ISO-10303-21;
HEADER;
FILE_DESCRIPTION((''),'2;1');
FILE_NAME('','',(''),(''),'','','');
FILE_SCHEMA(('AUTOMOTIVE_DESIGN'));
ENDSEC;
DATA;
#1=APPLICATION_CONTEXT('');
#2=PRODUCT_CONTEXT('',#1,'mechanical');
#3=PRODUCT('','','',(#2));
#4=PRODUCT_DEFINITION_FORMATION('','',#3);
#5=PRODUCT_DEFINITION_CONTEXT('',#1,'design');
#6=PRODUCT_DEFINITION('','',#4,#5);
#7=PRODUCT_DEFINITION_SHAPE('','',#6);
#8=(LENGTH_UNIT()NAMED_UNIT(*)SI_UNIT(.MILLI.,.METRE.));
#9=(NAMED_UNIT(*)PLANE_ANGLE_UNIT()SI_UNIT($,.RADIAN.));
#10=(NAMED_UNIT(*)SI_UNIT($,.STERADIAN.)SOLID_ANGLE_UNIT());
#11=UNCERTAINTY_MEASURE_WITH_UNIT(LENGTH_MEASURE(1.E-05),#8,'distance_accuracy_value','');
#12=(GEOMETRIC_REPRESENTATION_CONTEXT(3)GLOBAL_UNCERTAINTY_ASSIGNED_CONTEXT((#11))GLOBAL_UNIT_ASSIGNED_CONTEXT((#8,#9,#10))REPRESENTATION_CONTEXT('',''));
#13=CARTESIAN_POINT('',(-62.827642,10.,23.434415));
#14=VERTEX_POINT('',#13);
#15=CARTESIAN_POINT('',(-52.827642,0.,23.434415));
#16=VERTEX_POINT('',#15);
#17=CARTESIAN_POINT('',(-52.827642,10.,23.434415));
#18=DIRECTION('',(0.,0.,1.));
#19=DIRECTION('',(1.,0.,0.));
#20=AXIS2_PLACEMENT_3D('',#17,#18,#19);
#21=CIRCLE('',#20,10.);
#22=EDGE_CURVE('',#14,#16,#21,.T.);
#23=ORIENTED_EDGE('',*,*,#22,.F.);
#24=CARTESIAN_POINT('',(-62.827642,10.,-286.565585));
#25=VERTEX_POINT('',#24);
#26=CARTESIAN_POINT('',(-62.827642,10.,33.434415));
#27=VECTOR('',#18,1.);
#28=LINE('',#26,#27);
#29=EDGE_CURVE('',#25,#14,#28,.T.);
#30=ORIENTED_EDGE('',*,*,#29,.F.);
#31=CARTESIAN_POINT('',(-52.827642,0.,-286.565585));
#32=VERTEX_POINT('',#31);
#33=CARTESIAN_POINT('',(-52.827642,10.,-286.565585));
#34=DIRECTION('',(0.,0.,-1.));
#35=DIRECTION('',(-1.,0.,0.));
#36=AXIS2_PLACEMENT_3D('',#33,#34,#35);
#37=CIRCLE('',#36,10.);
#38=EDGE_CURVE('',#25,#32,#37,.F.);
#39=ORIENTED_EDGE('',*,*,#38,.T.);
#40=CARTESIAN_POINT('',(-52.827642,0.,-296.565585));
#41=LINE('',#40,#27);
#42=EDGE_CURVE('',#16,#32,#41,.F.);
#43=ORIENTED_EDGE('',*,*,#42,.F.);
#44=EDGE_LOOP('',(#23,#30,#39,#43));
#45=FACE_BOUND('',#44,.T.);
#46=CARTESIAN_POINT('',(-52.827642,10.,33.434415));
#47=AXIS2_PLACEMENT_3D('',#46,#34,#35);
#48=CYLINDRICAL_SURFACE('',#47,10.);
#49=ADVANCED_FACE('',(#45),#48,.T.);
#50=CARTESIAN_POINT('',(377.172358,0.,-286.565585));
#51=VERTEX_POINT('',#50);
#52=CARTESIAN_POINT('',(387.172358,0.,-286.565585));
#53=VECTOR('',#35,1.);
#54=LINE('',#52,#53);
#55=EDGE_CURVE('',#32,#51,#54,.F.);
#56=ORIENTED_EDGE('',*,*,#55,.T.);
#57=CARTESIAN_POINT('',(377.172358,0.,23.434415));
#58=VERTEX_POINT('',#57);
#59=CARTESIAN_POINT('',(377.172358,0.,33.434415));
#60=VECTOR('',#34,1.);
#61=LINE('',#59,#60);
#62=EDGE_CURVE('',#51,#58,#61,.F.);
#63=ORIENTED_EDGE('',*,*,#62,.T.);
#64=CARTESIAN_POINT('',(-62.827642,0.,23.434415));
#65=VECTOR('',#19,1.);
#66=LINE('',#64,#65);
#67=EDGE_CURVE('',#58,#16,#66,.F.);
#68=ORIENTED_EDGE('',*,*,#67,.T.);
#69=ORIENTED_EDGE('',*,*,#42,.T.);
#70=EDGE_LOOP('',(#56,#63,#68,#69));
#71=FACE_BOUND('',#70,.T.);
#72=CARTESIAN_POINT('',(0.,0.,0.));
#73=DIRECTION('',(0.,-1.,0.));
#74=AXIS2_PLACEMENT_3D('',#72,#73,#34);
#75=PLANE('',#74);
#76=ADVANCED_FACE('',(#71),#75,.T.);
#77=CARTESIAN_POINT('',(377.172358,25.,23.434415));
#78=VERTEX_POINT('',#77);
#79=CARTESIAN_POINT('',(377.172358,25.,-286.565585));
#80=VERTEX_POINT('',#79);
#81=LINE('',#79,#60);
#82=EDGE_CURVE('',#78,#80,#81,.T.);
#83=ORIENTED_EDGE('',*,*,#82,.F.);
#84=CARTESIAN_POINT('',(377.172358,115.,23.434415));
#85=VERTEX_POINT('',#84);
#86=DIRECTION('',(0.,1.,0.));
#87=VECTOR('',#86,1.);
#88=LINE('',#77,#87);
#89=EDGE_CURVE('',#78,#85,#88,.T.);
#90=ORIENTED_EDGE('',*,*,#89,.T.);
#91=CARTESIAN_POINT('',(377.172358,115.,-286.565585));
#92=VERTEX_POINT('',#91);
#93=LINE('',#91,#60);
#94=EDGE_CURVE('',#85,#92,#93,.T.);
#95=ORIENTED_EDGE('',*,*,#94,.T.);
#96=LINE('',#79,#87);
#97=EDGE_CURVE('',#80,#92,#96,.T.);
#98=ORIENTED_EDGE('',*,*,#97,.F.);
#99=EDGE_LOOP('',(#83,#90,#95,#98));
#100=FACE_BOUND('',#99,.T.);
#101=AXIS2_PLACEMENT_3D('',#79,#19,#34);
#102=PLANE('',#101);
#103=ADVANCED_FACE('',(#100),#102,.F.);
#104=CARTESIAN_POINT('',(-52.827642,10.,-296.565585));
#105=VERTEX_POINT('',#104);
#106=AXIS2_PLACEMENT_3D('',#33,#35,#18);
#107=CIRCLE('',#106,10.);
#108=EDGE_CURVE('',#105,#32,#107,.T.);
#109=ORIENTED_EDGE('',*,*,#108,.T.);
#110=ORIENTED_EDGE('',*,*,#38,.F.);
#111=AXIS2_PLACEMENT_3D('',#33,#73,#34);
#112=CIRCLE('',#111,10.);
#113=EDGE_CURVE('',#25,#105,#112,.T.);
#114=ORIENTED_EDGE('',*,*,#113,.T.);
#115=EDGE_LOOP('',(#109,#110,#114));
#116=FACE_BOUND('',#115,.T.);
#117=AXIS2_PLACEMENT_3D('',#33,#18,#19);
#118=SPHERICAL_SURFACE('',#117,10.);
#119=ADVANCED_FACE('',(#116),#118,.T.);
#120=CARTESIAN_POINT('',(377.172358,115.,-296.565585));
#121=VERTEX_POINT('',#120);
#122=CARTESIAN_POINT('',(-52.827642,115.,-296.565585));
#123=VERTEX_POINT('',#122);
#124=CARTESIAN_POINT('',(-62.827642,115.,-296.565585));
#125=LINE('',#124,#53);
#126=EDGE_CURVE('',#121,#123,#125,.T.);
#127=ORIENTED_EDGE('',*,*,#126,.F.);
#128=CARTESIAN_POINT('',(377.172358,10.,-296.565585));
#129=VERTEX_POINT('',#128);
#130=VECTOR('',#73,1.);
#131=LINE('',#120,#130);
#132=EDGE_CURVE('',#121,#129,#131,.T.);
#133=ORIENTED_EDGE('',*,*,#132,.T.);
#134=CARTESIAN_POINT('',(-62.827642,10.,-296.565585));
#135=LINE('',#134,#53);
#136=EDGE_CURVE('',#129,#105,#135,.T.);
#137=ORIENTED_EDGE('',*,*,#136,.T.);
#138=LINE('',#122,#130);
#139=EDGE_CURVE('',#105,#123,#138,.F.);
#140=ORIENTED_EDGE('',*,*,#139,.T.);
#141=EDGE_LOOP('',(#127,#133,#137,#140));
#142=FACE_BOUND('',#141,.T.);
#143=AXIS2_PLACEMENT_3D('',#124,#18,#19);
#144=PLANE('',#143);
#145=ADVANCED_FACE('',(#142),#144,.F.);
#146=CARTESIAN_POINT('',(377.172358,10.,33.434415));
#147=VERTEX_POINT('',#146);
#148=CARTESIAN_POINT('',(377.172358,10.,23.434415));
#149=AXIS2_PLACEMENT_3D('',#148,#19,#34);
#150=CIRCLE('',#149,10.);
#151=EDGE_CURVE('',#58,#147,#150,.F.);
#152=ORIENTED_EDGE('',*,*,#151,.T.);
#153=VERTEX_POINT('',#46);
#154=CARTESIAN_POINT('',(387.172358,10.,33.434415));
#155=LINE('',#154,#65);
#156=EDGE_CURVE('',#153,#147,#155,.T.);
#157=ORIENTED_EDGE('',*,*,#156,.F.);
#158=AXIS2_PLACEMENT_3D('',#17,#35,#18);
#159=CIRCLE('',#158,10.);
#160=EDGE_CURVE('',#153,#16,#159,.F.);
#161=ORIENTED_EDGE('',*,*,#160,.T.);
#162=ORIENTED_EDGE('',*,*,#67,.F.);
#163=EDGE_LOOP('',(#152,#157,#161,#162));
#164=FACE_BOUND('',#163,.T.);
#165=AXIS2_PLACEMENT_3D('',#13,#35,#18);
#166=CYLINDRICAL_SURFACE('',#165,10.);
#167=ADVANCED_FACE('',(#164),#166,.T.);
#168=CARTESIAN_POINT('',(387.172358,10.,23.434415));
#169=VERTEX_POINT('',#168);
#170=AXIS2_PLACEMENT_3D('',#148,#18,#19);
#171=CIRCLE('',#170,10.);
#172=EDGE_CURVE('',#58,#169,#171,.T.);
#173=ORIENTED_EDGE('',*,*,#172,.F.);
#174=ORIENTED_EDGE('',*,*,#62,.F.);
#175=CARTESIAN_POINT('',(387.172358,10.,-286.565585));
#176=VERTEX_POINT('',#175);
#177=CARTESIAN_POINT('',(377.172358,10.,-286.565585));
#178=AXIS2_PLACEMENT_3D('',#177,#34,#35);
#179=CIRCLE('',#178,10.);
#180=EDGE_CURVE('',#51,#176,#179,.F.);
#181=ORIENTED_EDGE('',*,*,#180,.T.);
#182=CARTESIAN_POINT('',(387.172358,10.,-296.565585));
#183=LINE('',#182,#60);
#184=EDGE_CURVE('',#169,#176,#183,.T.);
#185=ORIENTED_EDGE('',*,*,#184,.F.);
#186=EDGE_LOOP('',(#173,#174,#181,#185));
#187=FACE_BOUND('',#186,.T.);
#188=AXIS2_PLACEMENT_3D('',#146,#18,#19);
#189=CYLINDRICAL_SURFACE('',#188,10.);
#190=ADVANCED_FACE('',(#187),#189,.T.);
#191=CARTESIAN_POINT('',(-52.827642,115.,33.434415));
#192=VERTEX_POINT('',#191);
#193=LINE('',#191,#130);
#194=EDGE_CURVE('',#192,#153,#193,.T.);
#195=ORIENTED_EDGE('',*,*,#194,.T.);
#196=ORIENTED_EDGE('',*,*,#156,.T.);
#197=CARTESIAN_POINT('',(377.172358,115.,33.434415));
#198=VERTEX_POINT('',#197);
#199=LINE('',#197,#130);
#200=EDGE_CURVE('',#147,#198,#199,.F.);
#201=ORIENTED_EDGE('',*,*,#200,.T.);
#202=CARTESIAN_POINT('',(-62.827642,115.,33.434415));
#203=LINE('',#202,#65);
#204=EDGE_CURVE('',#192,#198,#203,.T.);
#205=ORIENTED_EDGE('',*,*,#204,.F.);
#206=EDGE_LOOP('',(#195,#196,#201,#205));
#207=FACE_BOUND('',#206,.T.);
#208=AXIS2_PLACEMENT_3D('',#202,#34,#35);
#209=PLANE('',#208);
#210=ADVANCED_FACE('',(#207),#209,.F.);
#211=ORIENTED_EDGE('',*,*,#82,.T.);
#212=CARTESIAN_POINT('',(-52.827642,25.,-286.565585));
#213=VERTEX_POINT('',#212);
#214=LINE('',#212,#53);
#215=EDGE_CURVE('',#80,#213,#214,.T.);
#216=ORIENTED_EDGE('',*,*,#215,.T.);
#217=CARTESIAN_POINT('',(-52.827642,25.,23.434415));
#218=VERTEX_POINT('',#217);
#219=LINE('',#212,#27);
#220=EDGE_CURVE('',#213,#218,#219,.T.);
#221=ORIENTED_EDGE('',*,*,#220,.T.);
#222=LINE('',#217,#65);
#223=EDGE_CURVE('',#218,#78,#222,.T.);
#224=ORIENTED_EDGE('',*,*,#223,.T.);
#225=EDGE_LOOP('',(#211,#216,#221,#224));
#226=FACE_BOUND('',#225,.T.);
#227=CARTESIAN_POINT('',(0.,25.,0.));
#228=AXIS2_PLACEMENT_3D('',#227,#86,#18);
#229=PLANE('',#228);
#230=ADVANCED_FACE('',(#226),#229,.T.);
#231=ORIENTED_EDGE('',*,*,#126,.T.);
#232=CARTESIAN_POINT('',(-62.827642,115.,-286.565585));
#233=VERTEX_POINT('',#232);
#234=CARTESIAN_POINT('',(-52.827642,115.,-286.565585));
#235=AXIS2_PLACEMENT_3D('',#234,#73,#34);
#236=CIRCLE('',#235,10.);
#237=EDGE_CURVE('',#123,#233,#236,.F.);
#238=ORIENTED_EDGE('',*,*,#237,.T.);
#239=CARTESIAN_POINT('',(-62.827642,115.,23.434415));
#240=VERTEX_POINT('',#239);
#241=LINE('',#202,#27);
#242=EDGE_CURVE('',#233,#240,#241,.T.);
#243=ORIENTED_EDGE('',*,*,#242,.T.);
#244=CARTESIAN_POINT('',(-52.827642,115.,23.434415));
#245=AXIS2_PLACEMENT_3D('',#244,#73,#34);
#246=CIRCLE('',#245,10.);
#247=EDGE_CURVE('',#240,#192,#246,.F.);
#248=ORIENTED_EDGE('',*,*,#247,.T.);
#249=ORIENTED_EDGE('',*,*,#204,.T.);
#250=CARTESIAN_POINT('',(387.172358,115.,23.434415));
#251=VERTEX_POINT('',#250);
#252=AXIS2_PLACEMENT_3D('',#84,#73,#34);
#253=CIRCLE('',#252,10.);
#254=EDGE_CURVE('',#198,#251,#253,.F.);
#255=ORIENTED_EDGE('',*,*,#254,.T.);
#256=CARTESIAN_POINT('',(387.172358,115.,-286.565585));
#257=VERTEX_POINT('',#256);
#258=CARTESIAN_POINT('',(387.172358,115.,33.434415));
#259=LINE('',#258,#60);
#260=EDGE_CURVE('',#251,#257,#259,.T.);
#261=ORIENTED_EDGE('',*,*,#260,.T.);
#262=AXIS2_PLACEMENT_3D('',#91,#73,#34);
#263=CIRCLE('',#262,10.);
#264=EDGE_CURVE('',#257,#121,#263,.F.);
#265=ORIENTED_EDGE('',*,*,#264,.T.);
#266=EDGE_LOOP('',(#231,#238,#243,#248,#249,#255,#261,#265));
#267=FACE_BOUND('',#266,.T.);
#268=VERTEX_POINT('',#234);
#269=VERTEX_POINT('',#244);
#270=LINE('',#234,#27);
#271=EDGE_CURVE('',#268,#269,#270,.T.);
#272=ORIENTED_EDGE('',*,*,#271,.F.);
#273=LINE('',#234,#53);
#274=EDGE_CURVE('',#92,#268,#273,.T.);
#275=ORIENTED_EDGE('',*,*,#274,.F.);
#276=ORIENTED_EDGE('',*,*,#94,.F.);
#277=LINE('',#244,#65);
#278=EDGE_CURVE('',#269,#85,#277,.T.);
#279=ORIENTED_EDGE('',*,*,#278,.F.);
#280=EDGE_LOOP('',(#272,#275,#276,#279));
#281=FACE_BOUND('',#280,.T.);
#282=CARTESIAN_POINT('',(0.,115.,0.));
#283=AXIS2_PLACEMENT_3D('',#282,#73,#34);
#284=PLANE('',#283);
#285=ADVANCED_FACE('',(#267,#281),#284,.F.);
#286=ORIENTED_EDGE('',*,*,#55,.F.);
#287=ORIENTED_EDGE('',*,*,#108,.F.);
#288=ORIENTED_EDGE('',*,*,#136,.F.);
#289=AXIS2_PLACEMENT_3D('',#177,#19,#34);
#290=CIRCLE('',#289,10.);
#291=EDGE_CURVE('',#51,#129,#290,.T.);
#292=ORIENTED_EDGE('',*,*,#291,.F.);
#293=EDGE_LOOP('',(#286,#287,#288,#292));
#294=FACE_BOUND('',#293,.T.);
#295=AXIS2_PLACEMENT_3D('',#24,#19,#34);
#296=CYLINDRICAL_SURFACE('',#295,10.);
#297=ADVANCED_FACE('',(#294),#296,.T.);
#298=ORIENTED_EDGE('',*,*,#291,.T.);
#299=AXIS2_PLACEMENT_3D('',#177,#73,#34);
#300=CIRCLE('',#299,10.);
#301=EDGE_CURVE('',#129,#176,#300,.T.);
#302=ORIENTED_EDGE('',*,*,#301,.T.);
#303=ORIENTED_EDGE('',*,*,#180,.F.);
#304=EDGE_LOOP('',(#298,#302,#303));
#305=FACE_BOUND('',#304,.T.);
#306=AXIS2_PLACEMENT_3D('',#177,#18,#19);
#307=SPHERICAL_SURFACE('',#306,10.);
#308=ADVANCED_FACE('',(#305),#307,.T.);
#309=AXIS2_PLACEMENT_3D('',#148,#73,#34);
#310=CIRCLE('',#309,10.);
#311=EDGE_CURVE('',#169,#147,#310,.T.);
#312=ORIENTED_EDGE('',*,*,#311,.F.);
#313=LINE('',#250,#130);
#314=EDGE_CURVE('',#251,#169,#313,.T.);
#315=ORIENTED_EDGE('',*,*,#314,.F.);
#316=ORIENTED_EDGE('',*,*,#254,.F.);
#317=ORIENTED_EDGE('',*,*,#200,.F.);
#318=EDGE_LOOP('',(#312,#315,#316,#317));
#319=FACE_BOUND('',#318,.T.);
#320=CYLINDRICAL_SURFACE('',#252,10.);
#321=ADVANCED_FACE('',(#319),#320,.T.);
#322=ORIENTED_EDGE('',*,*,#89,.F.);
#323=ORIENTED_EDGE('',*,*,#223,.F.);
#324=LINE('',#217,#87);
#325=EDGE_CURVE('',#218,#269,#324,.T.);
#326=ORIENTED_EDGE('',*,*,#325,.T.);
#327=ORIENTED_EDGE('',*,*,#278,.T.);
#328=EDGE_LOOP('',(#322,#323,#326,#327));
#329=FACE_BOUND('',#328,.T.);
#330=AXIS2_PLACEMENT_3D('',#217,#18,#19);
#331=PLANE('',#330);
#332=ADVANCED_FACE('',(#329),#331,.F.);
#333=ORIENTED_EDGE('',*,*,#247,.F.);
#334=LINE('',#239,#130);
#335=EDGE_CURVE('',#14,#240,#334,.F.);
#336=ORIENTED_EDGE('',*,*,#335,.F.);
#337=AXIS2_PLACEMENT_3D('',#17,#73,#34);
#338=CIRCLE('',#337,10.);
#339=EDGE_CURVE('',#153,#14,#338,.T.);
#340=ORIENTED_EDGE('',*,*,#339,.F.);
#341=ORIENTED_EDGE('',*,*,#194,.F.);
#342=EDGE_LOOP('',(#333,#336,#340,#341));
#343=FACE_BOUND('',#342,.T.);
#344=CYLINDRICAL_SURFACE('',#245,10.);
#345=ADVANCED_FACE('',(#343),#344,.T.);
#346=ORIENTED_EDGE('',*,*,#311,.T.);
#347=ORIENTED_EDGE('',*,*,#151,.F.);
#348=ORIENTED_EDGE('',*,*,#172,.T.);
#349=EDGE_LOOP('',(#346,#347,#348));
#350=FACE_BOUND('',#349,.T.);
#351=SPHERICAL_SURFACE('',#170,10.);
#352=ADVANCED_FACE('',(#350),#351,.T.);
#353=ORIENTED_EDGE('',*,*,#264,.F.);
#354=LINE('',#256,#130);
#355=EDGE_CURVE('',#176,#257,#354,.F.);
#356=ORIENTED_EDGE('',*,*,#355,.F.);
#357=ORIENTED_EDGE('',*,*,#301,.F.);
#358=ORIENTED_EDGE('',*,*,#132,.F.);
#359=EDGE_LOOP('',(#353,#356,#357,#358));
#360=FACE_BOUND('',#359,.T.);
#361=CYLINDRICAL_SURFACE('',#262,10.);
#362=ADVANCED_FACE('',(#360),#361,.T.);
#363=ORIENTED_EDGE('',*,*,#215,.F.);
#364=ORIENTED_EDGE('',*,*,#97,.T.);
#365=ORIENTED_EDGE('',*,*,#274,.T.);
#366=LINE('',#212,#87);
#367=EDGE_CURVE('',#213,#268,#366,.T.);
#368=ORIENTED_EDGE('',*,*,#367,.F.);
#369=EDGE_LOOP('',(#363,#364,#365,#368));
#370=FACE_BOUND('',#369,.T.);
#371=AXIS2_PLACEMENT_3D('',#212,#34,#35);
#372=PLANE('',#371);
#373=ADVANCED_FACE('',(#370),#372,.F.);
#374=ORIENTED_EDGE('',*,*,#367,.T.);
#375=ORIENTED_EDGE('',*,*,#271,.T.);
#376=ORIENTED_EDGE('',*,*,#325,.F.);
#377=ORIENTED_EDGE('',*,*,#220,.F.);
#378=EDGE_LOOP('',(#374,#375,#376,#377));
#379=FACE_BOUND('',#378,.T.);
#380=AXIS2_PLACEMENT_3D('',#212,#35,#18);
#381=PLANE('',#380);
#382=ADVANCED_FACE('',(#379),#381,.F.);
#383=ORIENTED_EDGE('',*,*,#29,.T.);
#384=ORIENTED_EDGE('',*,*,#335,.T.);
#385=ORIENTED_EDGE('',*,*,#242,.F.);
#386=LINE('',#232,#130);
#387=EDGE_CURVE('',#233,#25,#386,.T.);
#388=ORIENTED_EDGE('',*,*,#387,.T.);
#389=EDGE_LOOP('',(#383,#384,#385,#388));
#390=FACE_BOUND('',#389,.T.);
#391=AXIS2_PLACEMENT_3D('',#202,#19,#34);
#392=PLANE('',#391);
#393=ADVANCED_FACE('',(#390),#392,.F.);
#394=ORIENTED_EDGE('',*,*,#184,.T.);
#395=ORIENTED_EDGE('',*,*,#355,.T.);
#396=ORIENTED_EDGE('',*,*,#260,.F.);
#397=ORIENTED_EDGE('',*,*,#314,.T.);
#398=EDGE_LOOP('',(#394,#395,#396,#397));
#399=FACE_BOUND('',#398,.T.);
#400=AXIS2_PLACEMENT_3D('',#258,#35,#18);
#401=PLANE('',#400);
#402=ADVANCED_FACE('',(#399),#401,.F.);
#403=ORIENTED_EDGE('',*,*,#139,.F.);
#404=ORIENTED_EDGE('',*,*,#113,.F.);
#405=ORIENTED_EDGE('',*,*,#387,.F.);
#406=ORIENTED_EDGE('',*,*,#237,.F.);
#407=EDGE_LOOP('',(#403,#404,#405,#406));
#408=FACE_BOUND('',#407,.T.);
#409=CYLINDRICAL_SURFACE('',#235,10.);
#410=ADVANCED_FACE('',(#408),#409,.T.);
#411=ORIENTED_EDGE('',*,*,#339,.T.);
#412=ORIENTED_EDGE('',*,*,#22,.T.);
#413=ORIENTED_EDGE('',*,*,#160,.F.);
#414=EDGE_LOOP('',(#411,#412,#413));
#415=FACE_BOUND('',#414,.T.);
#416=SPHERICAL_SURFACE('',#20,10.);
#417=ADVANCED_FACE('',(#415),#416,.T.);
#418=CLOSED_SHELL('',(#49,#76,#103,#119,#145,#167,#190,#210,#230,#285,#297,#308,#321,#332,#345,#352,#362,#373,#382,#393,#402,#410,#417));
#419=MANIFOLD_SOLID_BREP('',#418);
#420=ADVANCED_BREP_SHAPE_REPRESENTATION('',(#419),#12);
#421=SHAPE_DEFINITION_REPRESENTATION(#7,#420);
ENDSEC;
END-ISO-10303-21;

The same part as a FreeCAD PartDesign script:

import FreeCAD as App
import Part
import Sketcher
Q = App.Units.Quantity


def edges_at(feature, points):
    """Names of the edges that pass closest to the given points."""
    edges = feature.Shape.Edges
    near = lambda p: min(range(len(edges)), key=lambda i: edges[i].distToShape(Part.Vertex(*p))[0])
    return sorted({f"Edge{near(p) + 1}" for p in points})

doc = App.newDocument("Part")
body = doc.addObject("PartDesign::Body", "Body")

sketch1 = body.newObject("Sketcher::SketchObject", "Sketch")
sketch1.AttachmentSupport = (doc.getObject("XZ_Plane"), [""])
sketch1.MapMode = "FlatFace"
sketch1.addGeometry([
    Part.LineSegment(App.Vector(-62.827642, -296.565585, 0), App.Vector(-62.827642, 33.434415, 0)),
    Part.LineSegment(App.Vector(-62.827642, 33.434415, 0), App.Vector(387.172358, 33.434415, 0)),
    Part.LineSegment(App.Vector(387.172358, 33.434415, 0), App.Vector(387.172358, -296.565585, 0)),
    Part.LineSegment(App.Vector(387.172358, -296.565585, 0), App.Vector(-62.827642, -296.565585, 0)),
], False)
sketch1.addConstraint([
    Sketcher.Constraint("Coincident", 0, 2, 1, 1),
    Sketcher.Constraint("Coincident", 1, 2, 2, 1),
    Sketcher.Constraint("Coincident", 2, 2, 3, 1),
    Sketcher.Constraint("Coincident", 3, 2, 0, 1),
    Sketcher.Constraint("Vertical", 0),
    Sketcher.Constraint("Horizontal", 1),
    Sketcher.Constraint("Vertical", 2),
    Sketcher.Constraint("Horizontal", 3),
    Sketcher.Constraint("DistanceX", 1, 1, 1, 2, Q("450 mm")),
    Sketcher.Constraint("DistanceY", 0, 1, 0, 2, Q("330 mm")),
    Sketcher.Constraint("DistanceX", 0, 2, -1, 1, Q("62.827642 mm")),
    Sketcher.Constraint("DistanceY", -1, 1, 0, 2, Q("33.434415 mm")),
])
pad1 = body.newObject("PartDesign::Pad", "Pad")
pad1.Profile = sketch1
pad1.Length = 115
pad1.Reversed = True

sketch2 = body.newObject("Sketcher::SketchObject", "Sketch001")
sketch2.AttachmentSupport = (doc.getObject("XZ_Plane"), [""])
sketch2.MapMode = "FlatFace"
sketch2.AttachmentOffset = App.Placement(App.Vector(0, 0, -115), App.Rotation())
sketch2.addGeometry([
    Part.LineSegment(App.Vector(-52.827642, -286.565585, 0), App.Vector(-52.827642, 23.434415, 0)),
    Part.LineSegment(App.Vector(-52.827642, 23.434415, 0), App.Vector(377.172358, 23.434415, 0)),
    Part.LineSegment(App.Vector(377.172358, 23.434415, 0), App.Vector(377.172358, -286.565585, 0)),
    Part.LineSegment(App.Vector(377.172358, -286.565585, 0), App.Vector(-52.827642, -286.565585, 0)),
], False)
sketch2.addConstraint([
    Sketcher.Constraint("Coincident", 0, 2, 1, 1),
    Sketcher.Constraint("Coincident", 1, 2, 2, 1),
    Sketcher.Constraint("Coincident", 2, 2, 3, 1),
    Sketcher.Constraint("Coincident", 3, 2, 0, 1),
    Sketcher.Constraint("Vertical", 0),
    Sketcher.Constraint("Horizontal", 1),
    Sketcher.Constraint("Vertical", 2),
    Sketcher.Constraint("Horizontal", 3),
    Sketcher.Constraint("DistanceX", 1, 1, 1, 2, Q("430 mm")),
    Sketcher.Constraint("DistanceY", 0, 1, 0, 2, Q("310 mm")),
    Sketcher.Constraint("DistanceX", 0, 2, -1, 1, Q("52.827642 mm")),
    Sketcher.Constraint("DistanceY", -1, 1, 0, 2, Q("23.434415 mm")),
])
pocket1 = body.newObject("PartDesign::Pocket", "Pocket")
pocket1.Profile = sketch2
pocket1.Length = 90
pocket1.Reversed = True
doc.recompute()

fillet = body.newObject("PartDesign::Fillet", "Fillet")
fillet.Base = (pocket1, edges_at(pocket1, [
    (162.172, 0, -296.566),
    (387.172, 0, -131.566),
    (162.172, 0, 33.434),
    (-62.828, 0, -131.566),
    (-62.828, 57.5, -296.566),
    (387.172, 57.5, -296.566),
    (387.172, 57.5, 33.434),
    (-62.828, 57.5, 33.434),
]))
fillet.Radius = 10

doc.recompute()
